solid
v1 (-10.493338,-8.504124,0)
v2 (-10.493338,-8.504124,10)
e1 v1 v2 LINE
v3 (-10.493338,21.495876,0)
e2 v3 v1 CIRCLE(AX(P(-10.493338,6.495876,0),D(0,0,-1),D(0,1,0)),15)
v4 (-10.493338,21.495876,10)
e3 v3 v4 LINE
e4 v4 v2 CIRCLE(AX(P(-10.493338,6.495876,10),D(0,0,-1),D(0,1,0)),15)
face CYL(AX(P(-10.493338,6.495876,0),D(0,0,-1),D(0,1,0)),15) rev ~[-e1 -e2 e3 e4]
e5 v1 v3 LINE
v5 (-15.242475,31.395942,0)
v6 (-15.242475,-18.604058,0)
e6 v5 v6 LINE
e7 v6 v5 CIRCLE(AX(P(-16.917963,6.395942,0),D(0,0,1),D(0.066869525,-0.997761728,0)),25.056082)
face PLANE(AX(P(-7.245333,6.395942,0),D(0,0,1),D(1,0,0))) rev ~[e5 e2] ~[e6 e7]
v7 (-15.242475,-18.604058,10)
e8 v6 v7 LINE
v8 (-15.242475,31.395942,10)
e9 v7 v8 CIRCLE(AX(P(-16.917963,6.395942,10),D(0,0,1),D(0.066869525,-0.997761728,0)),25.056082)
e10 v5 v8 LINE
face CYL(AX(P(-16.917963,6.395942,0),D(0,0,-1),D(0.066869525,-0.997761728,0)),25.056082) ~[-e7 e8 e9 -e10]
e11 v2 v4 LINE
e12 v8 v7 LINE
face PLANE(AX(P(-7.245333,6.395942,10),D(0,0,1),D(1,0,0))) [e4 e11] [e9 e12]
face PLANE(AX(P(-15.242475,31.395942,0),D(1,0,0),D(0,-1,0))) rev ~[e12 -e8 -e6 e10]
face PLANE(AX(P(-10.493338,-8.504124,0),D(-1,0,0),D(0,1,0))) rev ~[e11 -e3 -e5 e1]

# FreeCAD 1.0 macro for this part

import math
import FreeCAD as App
import Part
import Sketcher

doc = App.newDocument("Part")
body = doc.addObject("PartDesign::Body", "Body")

sketch1 = body.newObject("Sketcher::SketchObject", "Sketch")
sketch1.AttachmentSupport = (doc.getObject("XY_Plane"), [""])
sketch1.MapMode = "FlatFace"
sketch1.addGeometry([
    Part.ArcOfCircle(Part.Circle(App.Vector(-17, 6, 0), App.Vector(0, 0, 1), 25), math.radians(-86), math.radians(86)),
    Part.LineSegment(App.Vector(-15, 31, 0), App.Vector(-15, -19, 0)),
    Part.ArcOfCircle(Part.Circle(App.Vector(-10, 6, 0), App.Vector(0, 0, 1), 15), math.radians(-90), math.radians(90)),
    Part.LineSegment(App.Vector(-10, -9, 0), App.Vector(-10, 21, 0)),
], False)
sketch1.addConstraint([
    Sketcher.Constraint("Coincident", 0, 1, 1, 2),
    Sketcher.Constraint("Coincident", 1, 1, 0, 2),
    Sketcher.Constraint("Coincident", 2, 1, 3, 1),
    Sketcher.Constraint("Coincident", 3, 2, 2, 2),
    Sketcher.Constraint("Vertical", 1),
    Sketcher.Constraint("Vertical", 3),
    Sketcher.Constraint("Radius", 2, 15.0),
    Sketcher.Constraint("DistanceY", 1, 2, 1, 1, 50.0),
    Sketcher.Constraint("Radius", 0, 25.056082),
    Sketcher.Constraint("DistanceY", -1, 1, 0, 3, 6.395942),
    Sketcher.Constraint("DistanceX", 0, 3, -1, 1, 16.917963),
    Sketcher.Constraint("DistanceX", 2, 3, -1, 1, 10.493338),
    Sketcher.Constraint("DistanceY", -1, 1, 2, 3, 6.495876),
    Sketcher.Constraint("DistanceX", 2, 1, -1, 1, 10.493338),
])
pad1 = body.newObject("PartDesign::Pad", "Pad")
pad1.Profile = sketch1
pad1.Length = 10

doc.recompute()
